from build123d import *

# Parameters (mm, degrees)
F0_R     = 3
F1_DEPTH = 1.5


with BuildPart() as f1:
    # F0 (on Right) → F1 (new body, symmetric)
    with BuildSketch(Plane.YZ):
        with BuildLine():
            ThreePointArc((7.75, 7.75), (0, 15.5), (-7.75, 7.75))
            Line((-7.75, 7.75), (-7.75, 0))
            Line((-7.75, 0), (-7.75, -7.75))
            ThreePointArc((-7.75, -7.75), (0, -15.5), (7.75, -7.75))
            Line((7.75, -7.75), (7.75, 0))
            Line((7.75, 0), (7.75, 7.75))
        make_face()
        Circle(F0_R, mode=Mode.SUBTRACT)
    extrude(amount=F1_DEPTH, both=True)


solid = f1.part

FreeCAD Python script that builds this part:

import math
import FreeCAD as App
import Part
import Sketcher
Q = App.Units.Quantity

doc = App.newDocument("Part")
body = doc.addObject("PartDesign::Body", "Body")

# Sketch on YZ plane
sketch1 = body.newObject("Sketcher::SketchObject", "Sketch")
sketch1.AttachmentSupport = (doc.getObject("YZ_Plane"), [""])
sketch1.MapMode = "FlatFace"
sketch1.addGeometry([
    Part.ArcOfCircle(Part.Circle(App.Vector(0, 7.8, 0), App.Vector(0, 0, 1), 7.8), math.radians(0), math.radians(180)),  # 0
    Part.LineSegment(App.Vector(-7.8, 7.8, 0), App.Vector(-7.8, -7.8, 0)),  # 1
    Part.ArcOfCircle(Part.Circle(App.Vector(0, -7.8, 0), App.Vector(0, 0, 1), 7.8), math.radians(180), math.radians(360)),  # 2
    Part.LineSegment(App.Vector(7.8, -7.8, 0), App.Vector(7.8, 7.8, 0)),  # 3
    Part.Circle(App.Vector(0, 0, 0), App.Vector(0, 0, 1), 3),  # 4
], False)
sketch1.addConstraint([
    Sketcher.Constraint("Tangent", 0, 2, 1, 1),
    Sketcher.Constraint("Tangent", 1, 2, 2, 1),
    Sketcher.Constraint("Tangent", 2, 2, 3, 1),
    Sketcher.Constraint("Tangent", 3, 2, 0, 1),
    Sketcher.Constraint("Vertical", 1),
    Sketcher.Constraint("Vertical", 3),
    Sketcher.Constraint("Coincident", 4, 3, -1, 1),
    Sketcher.Constraint("Symmetric", 0, 3, 2, 3, -1, 1),
    Sketcher.Constraint("Diameter", 4, Q("6 mm")),
    Sketcher.Constraint("Radius", 0, Q("7.75 mm")),
    Sketcher.Constraint("DistanceY", 1, 2, 1, 1, Q("15.5 mm")),
])
pad1 = body.newObject("PartDesign::Pad", "Pad")
pad1.Profile = sketch1
pad1.Length = 3
pad1.Midplane = True

doc.recompute()
